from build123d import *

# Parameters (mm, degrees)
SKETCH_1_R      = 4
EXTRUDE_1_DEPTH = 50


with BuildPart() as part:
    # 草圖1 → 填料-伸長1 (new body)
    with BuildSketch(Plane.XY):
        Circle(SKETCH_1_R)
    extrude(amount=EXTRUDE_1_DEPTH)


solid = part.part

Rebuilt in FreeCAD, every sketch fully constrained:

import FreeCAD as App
import Part
import Sketcher
Q = App.Units.Quantity

doc = App.newDocument("Part")
body = doc.addObject("PartDesign::Body", "Body")

sketch1 = doc.addObject("Sketcher::SketchObject", "Sketch")
body.addObject(sketch1)
sketch1.AttachmentSupport = (doc.XY_Plane, [""])
sketch1.MapMode = "FlatFace"
sketch1.addGeometry(Part.Circle(App.Vector(0, 0, 0), App.Vector(0, 0, 1), 4), False)
sketch1.addConstraint(Sketcher.Constraint("Coincident", 0, 3, -1, 1))
sketch1.addConstraint(Sketcher.Constraint("Diameter", 0, Q("8 mm")))
pad1 = doc.addObject("PartDesign::Pad", "Pad")
body.addObject(pad1)
pad1.Profile = sketch1
pad1.Length = 50

doc.recompute()
